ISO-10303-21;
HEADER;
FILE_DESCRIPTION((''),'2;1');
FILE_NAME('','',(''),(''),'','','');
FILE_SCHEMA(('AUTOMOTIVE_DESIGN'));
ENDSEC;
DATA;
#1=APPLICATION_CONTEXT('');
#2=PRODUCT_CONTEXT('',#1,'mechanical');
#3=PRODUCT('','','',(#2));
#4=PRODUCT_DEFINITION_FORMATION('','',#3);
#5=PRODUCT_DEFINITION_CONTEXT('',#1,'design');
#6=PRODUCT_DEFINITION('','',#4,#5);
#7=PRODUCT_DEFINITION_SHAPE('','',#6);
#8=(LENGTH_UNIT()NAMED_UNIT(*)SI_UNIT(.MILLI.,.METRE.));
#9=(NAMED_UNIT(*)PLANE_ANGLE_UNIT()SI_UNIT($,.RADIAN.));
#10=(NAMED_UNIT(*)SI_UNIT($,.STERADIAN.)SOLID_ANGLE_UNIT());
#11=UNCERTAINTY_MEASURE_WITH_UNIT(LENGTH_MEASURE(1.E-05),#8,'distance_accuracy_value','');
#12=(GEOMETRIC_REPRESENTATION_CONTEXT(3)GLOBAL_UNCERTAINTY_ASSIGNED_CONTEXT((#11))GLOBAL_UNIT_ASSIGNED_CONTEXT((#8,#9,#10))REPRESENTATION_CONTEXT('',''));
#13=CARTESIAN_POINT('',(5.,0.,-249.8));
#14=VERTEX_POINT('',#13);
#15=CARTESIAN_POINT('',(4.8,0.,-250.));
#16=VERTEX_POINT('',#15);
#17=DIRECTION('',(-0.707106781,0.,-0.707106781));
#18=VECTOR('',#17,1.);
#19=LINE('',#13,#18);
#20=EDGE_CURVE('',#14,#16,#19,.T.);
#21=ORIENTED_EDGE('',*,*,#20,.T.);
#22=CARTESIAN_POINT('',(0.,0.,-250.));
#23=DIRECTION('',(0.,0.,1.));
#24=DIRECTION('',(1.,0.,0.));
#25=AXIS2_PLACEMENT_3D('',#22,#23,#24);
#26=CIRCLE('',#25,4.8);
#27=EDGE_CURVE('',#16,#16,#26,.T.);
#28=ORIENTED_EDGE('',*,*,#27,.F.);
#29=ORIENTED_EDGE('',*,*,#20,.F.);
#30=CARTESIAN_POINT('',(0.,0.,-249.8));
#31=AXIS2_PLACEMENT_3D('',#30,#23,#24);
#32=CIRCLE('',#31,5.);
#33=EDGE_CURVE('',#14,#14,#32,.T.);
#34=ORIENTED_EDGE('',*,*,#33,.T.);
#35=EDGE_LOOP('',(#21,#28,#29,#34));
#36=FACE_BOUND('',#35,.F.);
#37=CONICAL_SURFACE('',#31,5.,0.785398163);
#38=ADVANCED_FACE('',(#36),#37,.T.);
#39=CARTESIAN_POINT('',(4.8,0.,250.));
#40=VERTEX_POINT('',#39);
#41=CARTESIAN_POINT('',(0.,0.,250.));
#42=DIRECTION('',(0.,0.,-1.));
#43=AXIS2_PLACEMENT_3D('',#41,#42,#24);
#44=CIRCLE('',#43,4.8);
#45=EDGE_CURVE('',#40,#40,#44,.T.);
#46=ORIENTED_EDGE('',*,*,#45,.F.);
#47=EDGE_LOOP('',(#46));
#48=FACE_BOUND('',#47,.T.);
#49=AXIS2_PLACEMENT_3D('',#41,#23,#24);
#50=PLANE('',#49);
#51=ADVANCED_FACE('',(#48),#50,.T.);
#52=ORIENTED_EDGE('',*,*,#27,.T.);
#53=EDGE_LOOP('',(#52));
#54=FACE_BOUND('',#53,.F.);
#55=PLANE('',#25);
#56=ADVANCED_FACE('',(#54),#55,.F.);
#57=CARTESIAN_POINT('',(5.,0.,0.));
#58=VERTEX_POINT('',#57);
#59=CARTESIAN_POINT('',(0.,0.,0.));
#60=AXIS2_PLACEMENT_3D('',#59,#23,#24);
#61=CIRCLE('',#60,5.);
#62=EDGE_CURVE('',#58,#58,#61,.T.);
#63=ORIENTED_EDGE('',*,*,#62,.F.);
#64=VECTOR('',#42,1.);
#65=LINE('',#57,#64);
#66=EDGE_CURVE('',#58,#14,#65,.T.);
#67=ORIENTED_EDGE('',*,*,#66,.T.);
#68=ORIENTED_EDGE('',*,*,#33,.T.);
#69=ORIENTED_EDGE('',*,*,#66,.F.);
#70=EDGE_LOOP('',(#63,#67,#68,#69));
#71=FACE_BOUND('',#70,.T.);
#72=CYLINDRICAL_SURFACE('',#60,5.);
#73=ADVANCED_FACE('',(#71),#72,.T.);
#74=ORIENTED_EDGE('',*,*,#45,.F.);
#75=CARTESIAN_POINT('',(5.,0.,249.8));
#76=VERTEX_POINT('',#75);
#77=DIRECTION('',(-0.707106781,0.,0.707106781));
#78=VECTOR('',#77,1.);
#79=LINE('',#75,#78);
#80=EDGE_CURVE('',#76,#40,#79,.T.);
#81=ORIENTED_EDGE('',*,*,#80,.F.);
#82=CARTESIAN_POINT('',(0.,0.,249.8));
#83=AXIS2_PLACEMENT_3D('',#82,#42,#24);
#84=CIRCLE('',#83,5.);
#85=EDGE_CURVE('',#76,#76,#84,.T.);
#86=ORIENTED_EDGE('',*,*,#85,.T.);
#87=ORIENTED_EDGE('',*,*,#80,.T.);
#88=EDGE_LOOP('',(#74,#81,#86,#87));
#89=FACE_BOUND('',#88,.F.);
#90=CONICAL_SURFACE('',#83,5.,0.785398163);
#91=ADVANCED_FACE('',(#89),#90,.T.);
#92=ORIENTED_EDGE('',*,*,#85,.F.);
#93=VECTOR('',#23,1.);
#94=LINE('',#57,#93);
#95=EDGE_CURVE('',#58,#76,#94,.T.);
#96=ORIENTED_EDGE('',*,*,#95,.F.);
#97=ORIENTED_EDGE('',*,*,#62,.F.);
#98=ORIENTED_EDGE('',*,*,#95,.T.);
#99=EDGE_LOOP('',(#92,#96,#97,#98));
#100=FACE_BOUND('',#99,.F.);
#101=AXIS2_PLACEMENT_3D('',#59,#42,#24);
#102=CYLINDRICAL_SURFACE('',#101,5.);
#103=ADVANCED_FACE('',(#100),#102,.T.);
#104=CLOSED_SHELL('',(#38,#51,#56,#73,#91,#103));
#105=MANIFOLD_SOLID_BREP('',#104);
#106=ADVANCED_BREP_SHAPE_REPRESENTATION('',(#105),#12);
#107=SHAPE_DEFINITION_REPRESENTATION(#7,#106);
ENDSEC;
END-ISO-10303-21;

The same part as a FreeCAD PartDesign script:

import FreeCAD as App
import Part
import Sketcher
from FreeCAD import Vector


def edges_at(feature, points):
    """Names of the edges that pass closest to the given points."""
    edges = feature.Shape.Edges
    near = lambda p: min(range(len(edges)), key=lambda i: edges[i].distToShape(Part.Vertex(*p))[0])
    return sorted({f"Edge{near(p) + 1}" for p in points})

doc = App.newDocument("Part")
body = doc.addObject("PartDesign::Body", "Body")

sketch1 = body.newObject("Sketcher::SketchObject", "Sketch")
sketch1.AttachmentSupport = (doc.getObject("XY_Plane"), [""])
sketch1.MapMode = "FlatFace"
sketch1.addGeometry(Part.Circle(Vector(0, 0, 0), Vector(0, 0, 1), 5), False)
sketch1.addConstraint([
    Sketcher.Constraint("Coincident", 0, 3, -1, 1),
    Sketcher.Constraint("Diameter", 0, 10.0),
])
pad1 = body.newObject("PartDesign::Pad", "Pad")
pad1.Profile = sketch1
pad1.Length = 500
pad1.Midplane = True
doc.recompute()

chamfer = body.newObject("PartDesign::Chamfer", "Chamfer")
chamfer.Base = (pad1, edges_at(pad1, [(-5, 0, 250)]))
chamfer.Size = 0.2
doc.recompute()

chamfer2 = body.newObject("PartDesign::Chamfer", "Chamfer001")
chamfer2.Base = (chamfer, edges_at(chamfer, [(-5, 0, -250)]))
chamfer2.Size = 0.2

doc.recompute()
